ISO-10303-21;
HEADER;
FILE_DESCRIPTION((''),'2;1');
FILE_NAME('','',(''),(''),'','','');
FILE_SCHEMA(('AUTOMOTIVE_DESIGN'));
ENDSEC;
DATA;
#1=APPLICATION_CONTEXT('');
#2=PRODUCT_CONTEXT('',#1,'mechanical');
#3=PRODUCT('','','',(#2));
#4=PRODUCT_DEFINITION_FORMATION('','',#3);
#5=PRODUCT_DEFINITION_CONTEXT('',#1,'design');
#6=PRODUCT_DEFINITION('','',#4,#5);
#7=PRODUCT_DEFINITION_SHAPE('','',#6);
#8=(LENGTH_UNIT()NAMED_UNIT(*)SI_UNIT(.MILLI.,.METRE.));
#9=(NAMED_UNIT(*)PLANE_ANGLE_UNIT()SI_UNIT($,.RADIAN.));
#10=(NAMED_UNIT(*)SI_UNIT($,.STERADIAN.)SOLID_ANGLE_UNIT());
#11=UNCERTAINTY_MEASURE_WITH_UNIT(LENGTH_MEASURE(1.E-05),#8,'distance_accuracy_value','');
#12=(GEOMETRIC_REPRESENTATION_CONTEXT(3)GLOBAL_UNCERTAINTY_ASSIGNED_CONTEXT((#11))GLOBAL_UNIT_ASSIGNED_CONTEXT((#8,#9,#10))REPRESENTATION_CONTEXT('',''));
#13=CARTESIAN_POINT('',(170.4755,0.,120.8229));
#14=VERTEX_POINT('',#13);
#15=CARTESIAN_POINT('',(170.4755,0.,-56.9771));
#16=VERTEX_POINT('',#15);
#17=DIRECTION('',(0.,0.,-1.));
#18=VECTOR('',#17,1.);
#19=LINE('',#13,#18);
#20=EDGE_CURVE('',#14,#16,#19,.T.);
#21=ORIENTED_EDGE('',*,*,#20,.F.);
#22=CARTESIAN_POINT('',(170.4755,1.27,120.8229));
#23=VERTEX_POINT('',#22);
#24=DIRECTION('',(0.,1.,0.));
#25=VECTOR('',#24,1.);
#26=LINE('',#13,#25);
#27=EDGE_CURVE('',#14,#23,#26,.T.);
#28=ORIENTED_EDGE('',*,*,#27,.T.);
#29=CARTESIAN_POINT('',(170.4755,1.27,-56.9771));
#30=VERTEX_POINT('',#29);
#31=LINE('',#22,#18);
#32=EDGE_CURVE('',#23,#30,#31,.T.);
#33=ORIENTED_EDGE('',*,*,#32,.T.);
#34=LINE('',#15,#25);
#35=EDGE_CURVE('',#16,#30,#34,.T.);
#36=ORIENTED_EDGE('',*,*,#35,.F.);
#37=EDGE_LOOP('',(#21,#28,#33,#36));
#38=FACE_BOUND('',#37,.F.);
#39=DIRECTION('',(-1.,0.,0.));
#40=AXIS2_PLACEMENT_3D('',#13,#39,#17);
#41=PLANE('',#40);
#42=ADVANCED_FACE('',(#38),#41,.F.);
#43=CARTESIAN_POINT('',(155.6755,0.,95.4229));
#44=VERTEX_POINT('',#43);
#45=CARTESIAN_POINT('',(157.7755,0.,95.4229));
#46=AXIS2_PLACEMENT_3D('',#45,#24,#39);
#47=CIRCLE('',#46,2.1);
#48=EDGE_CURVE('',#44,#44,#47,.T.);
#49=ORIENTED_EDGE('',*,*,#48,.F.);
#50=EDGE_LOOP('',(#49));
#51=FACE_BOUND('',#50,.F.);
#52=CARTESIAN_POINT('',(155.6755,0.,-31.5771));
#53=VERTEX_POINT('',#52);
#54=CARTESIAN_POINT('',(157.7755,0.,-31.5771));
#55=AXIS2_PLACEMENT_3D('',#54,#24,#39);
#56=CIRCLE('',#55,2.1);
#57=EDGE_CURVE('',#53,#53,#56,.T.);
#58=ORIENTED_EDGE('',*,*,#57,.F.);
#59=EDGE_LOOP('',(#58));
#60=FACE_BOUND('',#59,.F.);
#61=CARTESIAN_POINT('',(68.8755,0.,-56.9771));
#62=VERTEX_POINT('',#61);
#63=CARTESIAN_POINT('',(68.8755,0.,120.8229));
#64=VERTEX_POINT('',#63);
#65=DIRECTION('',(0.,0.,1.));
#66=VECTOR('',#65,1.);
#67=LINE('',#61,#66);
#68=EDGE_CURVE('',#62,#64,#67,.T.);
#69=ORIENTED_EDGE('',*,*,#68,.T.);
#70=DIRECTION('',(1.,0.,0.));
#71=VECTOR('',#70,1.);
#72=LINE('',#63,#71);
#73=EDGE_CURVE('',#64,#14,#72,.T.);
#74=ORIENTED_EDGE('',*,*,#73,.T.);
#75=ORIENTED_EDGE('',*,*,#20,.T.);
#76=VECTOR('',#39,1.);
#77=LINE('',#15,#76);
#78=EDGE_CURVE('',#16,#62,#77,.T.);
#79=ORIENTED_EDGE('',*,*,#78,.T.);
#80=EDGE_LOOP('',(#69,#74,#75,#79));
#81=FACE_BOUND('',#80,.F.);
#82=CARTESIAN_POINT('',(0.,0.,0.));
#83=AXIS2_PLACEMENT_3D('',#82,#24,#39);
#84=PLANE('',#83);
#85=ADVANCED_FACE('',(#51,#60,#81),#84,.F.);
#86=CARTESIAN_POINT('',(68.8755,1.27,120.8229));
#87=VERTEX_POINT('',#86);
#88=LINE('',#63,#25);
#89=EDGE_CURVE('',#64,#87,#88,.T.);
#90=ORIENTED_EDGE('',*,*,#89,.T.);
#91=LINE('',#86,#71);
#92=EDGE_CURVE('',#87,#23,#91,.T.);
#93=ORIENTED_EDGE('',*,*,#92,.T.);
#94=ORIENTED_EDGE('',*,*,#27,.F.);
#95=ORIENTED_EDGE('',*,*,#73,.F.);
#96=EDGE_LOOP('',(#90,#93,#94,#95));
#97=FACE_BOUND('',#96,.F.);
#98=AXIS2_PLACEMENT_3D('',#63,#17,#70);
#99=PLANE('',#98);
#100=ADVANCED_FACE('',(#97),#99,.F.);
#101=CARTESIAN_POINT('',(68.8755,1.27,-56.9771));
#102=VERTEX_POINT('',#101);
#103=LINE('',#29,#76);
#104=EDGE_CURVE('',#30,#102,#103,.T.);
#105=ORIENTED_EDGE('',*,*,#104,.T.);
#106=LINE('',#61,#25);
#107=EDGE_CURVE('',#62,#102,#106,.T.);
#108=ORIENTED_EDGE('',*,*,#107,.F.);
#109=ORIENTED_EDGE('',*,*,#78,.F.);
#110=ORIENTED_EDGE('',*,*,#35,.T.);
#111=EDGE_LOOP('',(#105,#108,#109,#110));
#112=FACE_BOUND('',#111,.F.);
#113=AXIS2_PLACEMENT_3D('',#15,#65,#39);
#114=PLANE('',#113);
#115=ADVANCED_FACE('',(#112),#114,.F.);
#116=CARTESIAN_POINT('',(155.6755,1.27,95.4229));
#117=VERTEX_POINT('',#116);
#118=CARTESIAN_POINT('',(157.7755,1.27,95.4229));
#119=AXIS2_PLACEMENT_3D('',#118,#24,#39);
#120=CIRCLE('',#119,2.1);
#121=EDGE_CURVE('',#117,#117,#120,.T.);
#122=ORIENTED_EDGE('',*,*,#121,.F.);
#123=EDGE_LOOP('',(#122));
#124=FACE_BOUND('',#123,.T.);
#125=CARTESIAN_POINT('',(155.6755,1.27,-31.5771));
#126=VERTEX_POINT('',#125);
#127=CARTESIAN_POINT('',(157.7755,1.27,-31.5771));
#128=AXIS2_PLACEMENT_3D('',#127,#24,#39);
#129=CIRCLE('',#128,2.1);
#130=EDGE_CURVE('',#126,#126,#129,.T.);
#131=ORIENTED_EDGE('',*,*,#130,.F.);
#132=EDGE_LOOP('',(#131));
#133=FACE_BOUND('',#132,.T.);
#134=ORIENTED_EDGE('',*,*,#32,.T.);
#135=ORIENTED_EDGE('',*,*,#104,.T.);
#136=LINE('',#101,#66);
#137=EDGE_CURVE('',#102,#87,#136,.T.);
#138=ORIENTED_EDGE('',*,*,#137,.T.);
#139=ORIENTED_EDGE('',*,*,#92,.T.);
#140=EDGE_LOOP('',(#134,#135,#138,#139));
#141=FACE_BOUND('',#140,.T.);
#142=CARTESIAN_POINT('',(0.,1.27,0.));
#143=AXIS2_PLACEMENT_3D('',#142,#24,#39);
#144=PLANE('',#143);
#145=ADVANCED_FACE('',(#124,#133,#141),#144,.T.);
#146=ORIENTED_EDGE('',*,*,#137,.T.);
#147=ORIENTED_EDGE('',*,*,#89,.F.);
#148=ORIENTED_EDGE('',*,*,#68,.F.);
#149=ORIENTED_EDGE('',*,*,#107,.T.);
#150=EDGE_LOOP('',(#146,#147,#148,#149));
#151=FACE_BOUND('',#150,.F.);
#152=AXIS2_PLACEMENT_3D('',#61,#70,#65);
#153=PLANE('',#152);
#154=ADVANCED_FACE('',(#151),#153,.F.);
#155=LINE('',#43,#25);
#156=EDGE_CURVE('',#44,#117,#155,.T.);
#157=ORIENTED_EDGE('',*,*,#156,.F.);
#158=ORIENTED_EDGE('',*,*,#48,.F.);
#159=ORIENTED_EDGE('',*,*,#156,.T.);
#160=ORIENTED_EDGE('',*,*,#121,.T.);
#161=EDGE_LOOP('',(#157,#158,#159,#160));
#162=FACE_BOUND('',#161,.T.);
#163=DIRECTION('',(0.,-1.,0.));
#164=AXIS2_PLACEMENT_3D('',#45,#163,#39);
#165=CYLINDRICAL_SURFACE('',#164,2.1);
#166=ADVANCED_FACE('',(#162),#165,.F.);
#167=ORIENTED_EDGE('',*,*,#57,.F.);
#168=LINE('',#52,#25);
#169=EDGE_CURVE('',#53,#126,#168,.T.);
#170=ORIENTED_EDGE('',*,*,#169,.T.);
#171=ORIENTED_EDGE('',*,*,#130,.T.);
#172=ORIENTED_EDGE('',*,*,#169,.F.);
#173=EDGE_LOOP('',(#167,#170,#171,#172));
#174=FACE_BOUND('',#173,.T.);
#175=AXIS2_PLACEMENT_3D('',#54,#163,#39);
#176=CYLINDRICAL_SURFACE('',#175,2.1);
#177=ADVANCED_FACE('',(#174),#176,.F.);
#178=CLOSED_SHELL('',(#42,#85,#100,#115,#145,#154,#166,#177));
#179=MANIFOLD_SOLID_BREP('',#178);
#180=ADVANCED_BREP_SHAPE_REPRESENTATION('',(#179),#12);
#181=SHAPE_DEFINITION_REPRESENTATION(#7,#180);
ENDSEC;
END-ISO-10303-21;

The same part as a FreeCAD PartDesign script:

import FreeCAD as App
import Part
import Sketcher
from FreeCAD import Vector
Q = App.Units.Quantity

doc = App.newDocument("Part")
body = doc.addObject("PartDesign::Body", "Body")

# Sketch on XZ plane
sketch1 = doc.addObject("Sketcher::SketchObject", "Sketch")
body.addObject(sketch1)
sketch1.AttachmentSupport = (doc.XZ_Plane, [""])
sketch1.MapMode = "FlatFace"
sketch1.addGeometry(Part.LineSegment(Vector(68.9, -57, 0), Vector(68.9, 120.8, 0)), False)
sketch1.addGeometry(Part.LineSegment(Vector(68.9, 120.8, 0), Vector(170.5, 120.8, 0)), False)
sketch1.addGeometry(Part.LineSegment(Vector(170.5, 120.8, 0), Vector(170.5, -57, 0)), False)
sketch1.addGeometry(Part.LineSegment(Vector(170.5, -57, 0), Vector(68.9, -57, 0)), False)
sketch1.addGeometry(Part.Circle(Vector(157.8, -31.6, 0), Vector(0, 0, 1), 2.1), False)
sketch1.addGeometry(Part.Circle(Vector(157.8, 95.4, 0), Vector(0, 0, 1), 2.1), False)
sketch1.addConstraint(Sketcher.Constraint("Coincident", 0, 2, 1, 1))
sketch1.addConstraint(Sketcher.Constraint("Coincident", 1, 2, 2, 1))
sketch1.addConstraint(Sketcher.Constraint("Coincident", 2, 2, 3, 1))
sketch1.addConstraint(Sketcher.Constraint("Coincident", 3, 2, 0, 1))
sketch1.addConstraint(Sketcher.Constraint("Vertical", 0))
sketch1.addConstraint(Sketcher.Constraint("Horizontal", 1))
sketch1.addConstraint(Sketcher.Constraint("Vertical", 2))
sketch1.addConstraint(Sketcher.Constraint("Horizontal", 3))
sketch1.addConstraint(Sketcher.Constraint("Equal", 4, 5))
sketch1.addConstraint(Sketcher.Constraint("Vertical", 4, 3, 5, 3))
sketch1.addConstraint(Sketcher.Constraint("DistanceX", 1, 1, 1, 2, Q("4 in")))
sketch1.addConstraint(Sketcher.Constraint("DistanceY", 0, 1, 0, 2, Q("7 in")))
sketch1.addConstraint(Sketcher.Constraint("DistanceY", 4, 3, 5, 3, Q("5 in")))
sketch1.addConstraint(Sketcher.Constraint("DistanceY", 5, 3, 0, 2, Q("1 in")))
sketch1.addConstraint(Sketcher.Constraint("DistanceX", 5, 3, 1, 2, Q("0.5 in")))
sketch1.addConstraint(Sketcher.Constraint("Diameter", 4, Q("4.2 mm")))
sketch1.addConstraint(Sketcher.Constraint("DistanceY", 4, 3, -1, 1, Q("1.2432 in")))
sketch1.addConstraint(Sketcher.Constraint("DistanceX", -1, 1, 4, 3, Q("157.7755 mm")))
pad1 = doc.addObject("PartDesign::Pad", "Pad")
body.addObject(pad1)
pad1.Profile = sketch1
pad1.Length = Q("0.05 in")
pad1.Reversed = True

doc.recompute()
